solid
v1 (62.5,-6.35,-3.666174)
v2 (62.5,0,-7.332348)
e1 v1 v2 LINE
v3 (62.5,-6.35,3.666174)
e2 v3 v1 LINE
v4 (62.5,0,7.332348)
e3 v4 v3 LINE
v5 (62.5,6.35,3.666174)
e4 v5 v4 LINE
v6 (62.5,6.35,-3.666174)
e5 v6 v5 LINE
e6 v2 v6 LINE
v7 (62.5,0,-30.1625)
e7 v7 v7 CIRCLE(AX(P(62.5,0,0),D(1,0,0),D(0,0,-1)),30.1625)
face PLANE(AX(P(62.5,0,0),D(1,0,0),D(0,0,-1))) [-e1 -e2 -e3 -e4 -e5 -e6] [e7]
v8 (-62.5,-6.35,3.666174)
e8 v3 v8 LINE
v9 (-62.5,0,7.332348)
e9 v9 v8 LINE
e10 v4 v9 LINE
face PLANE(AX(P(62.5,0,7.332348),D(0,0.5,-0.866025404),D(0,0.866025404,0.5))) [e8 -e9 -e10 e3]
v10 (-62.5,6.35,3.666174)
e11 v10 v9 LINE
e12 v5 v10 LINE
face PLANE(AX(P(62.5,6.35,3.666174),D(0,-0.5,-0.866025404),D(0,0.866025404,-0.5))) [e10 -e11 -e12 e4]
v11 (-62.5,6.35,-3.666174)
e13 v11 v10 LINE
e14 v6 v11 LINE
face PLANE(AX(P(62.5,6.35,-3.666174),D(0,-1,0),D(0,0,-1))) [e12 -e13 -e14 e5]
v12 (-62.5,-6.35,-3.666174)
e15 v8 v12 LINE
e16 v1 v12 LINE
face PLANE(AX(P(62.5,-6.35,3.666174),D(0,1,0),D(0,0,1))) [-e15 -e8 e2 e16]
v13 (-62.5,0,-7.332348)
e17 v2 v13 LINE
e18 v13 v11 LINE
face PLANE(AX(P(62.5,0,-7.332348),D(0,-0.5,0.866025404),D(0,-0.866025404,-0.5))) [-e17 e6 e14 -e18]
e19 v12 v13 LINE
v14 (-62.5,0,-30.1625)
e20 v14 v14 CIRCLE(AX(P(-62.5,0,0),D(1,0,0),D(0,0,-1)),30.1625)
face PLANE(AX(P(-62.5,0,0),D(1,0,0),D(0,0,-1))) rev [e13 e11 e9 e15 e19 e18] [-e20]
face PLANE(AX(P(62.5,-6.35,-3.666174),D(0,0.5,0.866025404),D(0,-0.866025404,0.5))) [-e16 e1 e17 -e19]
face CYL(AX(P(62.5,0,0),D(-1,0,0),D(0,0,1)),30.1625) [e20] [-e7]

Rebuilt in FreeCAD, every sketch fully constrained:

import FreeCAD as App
import Part
import Sketcher

V = App.Vector
Q = App.Units.Quantity


def add_polygon(sketch, points):
    """Adds a closed chain of lines whose ends are joined by coincident constraints."""
    first, n = sketch.GeometryCount, len(points)
    for a, b in zip(points, points[1:] + points[:1]):
        sketch.addGeometry(Part.LineSegment(App.Vector(*a, 0), App.Vector(*b, 0)), False)
    for i in range(n):
        sketch.addConstraint(Sketcher.Constraint("Coincident", first + i, 2, first + (i + 1) % n, 1))

doc = App.newDocument("Part")
body = doc.addObject("PartDesign::Body", "Body")

sketch1 = body.newObject("Sketcher::SketchObject", "Sketch")
sketch1.AttachmentSupport = (doc.getObject("YZ_Plane"), [""])
sketch1.MapMode = "FlatFace"
sketch1.addGeometry(Part.Circle(V(0, 0, 0), V(0, 0, 1), 30.1625), False)
add_polygon(sketch1, [(6.35, -3.666174), (0, -7.332348), (-6.35, -3.666174), (-6.35, 3.666174), (0, 7.332348), (6.35, 3.666174)])
sketch1.addConstraint(Sketcher.Constraint("Vertical", 3))
sketch1.addConstraint(Sketcher.Constraint("Vertical", 6))
sketch1.addConstraint(Sketcher.Constraint("Coincident", 0, 3, -1, 1))
sketch1.addConstraint(Sketcher.Constraint("Symmetric", 1, 2, 4, 2, -1, 1))
sketch1.addConstraint(Sketcher.Constraint("Symmetric", 2, 2, 5, 2, -1, 1))
sketch1.addConstraint(Sketcher.Constraint("PointOnObject", 1, 2, -2))
sketch1.addConstraint(Sketcher.Constraint("Parallel", 1, 4))
sketch1.addConstraint(Sketcher.Constraint("Horizontal", 3, 2, 5, 2))
sketch1.addConstraint(Sketcher.Constraint("Angle", 1, Q("-150 deg")))
sketch1.addConstraint(Sketcher.Constraint("Diameter", 0, 60.325))
sketch1.addConstraint(Sketcher.Constraint("DistanceX", 3, 2, 5, 2, 12.7))
sketch1.addConstraint(Sketcher.Constraint("DistanceY", 3, 1, 3, 2, 7.332348))
pad1 = body.newObject("PartDesign::Pad", "Pad")
pad1.Profile = sketch1
pad1.Length = 125
pad1.Midplane = True

doc.recompute()
